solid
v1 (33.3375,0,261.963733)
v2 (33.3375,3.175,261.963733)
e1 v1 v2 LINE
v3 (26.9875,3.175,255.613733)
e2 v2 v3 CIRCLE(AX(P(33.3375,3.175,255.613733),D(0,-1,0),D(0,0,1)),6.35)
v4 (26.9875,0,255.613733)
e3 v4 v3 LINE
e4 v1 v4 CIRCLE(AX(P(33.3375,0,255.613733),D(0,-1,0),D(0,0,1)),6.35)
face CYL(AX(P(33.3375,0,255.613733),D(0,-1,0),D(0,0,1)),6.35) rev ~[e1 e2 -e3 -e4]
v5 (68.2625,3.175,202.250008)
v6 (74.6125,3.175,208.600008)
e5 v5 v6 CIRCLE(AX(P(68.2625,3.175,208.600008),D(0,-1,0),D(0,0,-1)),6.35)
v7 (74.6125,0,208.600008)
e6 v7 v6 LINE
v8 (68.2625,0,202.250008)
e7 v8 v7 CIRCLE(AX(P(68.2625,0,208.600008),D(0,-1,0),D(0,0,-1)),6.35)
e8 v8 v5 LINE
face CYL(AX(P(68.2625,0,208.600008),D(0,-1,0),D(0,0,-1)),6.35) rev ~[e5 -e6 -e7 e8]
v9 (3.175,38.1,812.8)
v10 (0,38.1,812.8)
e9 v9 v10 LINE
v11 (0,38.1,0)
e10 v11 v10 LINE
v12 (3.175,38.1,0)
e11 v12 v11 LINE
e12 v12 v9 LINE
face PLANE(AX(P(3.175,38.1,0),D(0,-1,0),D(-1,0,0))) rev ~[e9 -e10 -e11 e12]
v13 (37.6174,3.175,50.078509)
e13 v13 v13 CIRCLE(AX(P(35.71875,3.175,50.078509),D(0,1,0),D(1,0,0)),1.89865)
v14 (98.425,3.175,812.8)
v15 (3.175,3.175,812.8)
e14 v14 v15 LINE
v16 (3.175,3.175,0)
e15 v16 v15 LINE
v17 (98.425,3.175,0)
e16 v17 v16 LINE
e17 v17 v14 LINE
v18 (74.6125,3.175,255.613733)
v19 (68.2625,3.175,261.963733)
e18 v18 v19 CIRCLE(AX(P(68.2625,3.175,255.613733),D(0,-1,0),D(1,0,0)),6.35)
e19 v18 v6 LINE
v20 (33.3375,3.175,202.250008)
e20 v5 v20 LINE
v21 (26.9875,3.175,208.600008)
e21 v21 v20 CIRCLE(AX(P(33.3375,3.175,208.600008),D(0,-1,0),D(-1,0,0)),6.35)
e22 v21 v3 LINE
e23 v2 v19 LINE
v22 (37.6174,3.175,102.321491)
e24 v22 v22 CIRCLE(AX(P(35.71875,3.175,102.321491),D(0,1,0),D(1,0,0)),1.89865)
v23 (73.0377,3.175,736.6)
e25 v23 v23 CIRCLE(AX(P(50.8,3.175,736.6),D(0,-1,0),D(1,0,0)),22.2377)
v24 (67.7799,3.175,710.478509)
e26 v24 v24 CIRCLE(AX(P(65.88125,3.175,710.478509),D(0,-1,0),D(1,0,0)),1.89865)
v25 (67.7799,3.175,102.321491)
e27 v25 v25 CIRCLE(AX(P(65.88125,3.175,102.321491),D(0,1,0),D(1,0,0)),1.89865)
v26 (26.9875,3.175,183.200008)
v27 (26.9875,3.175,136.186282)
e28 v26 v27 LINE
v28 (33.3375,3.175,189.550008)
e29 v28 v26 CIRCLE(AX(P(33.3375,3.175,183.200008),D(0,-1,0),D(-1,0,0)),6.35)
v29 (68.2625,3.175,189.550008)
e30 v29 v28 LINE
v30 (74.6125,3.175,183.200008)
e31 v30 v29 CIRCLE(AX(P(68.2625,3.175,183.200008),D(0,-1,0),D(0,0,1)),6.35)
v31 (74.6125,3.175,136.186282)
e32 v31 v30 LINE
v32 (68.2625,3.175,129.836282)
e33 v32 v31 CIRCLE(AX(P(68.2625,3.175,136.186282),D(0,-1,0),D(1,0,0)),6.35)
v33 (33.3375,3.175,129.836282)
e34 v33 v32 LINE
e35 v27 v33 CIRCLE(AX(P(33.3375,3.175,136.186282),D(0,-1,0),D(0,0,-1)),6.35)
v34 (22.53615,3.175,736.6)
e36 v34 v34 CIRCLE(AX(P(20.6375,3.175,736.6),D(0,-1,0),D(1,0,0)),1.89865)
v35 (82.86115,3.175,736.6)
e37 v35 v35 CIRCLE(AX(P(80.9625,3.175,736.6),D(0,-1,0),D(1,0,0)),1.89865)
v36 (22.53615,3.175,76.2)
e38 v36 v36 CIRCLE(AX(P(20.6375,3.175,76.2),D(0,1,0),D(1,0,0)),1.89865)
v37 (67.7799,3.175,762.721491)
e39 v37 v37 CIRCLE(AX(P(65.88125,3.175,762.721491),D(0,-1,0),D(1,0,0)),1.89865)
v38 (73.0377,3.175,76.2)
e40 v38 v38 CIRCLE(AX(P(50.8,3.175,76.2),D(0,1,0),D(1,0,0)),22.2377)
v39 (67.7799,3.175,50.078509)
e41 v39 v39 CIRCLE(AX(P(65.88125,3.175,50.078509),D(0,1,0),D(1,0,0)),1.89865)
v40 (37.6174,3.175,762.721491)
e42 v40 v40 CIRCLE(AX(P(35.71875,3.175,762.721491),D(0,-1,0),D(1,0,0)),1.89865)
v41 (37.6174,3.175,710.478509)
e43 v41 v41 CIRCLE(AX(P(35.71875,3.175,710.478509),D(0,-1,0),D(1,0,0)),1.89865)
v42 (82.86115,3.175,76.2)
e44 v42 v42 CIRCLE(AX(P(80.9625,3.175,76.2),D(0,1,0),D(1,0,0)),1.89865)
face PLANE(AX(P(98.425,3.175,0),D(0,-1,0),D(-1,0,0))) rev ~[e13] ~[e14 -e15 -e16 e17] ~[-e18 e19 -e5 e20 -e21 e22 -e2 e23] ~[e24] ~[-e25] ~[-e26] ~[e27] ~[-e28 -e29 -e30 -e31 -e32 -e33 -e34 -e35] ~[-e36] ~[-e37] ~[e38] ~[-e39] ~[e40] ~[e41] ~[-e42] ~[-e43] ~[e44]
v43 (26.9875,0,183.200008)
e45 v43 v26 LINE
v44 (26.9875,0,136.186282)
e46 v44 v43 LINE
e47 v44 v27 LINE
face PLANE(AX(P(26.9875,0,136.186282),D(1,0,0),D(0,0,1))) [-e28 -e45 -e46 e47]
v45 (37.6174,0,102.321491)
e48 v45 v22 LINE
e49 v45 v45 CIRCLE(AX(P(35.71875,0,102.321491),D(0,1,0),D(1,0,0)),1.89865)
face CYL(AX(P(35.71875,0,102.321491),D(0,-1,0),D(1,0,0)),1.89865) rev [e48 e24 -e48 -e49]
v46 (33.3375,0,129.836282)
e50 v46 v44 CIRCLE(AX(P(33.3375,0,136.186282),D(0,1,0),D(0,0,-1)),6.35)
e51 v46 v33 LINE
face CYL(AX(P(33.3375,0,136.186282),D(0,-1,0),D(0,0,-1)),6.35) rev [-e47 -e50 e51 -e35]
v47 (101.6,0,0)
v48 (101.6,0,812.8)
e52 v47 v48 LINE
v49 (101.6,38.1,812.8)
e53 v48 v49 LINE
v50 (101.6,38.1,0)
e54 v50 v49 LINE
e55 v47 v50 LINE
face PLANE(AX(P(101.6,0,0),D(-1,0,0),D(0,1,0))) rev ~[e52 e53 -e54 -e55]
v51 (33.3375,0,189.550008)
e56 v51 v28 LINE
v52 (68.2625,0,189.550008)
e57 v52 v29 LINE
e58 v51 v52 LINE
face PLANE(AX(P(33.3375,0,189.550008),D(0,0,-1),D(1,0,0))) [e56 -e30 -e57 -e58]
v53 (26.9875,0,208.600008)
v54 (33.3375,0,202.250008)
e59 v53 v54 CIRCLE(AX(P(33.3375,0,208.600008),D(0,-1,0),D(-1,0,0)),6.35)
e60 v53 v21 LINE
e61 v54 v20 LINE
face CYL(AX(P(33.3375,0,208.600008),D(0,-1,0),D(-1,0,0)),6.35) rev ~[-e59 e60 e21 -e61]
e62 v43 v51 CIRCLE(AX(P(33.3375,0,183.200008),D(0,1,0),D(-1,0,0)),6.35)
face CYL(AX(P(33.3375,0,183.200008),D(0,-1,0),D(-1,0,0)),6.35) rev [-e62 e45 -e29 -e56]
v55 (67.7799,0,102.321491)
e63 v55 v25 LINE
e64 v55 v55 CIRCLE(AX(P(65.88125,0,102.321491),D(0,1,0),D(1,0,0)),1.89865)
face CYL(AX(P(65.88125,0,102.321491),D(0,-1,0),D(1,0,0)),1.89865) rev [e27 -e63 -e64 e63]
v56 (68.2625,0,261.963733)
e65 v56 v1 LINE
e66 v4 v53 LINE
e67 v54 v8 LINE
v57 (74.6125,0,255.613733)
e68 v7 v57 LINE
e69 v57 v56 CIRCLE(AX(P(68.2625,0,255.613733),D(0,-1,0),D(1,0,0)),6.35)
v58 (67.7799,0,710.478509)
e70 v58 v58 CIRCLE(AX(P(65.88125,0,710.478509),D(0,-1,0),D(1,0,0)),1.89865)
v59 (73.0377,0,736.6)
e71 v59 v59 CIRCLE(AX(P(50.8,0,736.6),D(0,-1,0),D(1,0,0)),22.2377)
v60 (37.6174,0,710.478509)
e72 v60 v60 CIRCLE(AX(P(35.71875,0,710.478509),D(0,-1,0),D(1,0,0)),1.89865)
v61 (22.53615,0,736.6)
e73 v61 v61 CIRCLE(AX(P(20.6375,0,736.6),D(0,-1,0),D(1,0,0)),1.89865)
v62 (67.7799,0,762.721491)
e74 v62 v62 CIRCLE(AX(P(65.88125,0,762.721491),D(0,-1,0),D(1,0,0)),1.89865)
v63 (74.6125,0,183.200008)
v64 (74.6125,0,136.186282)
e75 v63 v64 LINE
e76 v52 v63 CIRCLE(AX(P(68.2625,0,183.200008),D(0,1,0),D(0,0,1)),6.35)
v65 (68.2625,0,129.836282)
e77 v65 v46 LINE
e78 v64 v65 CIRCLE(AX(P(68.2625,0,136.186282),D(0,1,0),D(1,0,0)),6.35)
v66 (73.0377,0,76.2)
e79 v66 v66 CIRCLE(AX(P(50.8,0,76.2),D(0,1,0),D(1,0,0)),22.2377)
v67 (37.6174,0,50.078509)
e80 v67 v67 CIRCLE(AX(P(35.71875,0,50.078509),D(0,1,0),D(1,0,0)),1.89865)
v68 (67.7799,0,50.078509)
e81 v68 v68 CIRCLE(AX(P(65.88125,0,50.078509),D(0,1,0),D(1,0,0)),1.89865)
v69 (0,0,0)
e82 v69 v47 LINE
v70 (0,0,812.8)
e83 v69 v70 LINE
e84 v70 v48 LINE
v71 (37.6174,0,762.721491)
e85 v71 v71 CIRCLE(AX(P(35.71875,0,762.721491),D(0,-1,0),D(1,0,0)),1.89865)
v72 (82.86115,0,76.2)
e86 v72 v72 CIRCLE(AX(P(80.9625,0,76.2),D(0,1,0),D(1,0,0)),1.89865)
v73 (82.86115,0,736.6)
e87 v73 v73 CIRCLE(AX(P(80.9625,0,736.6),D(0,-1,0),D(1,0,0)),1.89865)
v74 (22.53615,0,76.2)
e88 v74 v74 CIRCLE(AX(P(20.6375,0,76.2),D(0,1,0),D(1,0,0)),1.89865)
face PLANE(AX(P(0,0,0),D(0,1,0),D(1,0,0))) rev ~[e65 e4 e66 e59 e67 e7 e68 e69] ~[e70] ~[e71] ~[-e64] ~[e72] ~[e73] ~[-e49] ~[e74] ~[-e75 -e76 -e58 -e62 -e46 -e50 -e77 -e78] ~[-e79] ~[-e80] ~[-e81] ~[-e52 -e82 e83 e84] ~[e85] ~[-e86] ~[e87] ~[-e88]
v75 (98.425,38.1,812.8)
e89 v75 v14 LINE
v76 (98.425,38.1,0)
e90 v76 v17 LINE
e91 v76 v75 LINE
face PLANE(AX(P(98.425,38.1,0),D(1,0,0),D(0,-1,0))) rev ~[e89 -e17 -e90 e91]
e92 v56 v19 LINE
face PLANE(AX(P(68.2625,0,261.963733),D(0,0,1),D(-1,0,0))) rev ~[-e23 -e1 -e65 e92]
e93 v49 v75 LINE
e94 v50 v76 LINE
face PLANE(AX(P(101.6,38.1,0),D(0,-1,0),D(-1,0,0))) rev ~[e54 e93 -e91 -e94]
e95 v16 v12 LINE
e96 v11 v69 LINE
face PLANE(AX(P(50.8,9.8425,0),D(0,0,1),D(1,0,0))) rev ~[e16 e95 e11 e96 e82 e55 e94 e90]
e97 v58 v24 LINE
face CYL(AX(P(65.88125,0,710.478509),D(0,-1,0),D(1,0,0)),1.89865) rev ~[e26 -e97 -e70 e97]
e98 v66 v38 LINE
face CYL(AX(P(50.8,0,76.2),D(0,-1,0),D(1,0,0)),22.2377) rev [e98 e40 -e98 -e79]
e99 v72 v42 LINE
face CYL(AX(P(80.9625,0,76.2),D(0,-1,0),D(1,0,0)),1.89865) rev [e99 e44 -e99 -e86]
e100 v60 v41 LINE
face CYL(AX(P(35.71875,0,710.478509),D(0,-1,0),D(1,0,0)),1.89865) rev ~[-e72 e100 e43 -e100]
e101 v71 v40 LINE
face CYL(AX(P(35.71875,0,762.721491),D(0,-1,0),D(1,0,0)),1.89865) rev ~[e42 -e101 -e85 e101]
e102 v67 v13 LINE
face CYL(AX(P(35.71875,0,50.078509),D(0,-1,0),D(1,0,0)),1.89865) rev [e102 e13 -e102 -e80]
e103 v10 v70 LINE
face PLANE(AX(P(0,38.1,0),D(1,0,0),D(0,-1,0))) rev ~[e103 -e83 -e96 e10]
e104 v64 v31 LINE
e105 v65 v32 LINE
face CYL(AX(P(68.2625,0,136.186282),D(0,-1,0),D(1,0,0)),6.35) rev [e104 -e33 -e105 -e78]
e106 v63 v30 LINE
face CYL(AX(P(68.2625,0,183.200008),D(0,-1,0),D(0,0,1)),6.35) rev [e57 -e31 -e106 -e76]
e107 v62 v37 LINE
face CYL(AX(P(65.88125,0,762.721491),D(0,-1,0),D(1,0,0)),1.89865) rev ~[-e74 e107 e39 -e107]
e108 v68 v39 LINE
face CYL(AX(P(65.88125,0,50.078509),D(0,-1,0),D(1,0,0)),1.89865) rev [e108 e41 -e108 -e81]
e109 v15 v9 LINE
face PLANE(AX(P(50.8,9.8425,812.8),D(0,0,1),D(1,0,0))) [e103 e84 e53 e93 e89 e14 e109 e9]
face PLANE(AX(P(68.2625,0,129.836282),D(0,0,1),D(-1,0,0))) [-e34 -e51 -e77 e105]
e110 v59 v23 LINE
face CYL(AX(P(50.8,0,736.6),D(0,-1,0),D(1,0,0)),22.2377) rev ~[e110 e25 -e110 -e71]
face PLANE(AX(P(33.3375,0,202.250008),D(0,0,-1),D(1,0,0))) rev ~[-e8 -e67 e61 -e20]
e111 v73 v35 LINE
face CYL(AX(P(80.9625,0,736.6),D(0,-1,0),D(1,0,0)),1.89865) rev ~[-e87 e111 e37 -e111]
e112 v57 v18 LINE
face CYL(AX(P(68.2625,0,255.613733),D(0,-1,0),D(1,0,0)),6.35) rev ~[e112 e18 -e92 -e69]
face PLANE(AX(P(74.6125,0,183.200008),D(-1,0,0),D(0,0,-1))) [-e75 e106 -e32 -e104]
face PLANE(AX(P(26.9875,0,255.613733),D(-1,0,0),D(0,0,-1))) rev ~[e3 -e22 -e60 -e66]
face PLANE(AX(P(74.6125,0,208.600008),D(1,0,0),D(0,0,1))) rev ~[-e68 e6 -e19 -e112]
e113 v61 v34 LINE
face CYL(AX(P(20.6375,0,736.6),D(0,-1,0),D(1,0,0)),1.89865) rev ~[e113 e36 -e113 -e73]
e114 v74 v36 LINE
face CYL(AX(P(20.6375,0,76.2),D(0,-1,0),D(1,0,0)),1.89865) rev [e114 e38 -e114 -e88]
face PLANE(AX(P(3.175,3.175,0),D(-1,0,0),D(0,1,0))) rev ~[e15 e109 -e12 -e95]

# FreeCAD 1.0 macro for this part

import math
import FreeCAD as App
import Part
import Sketcher

V = App.Vector
Q = App.Units.Quantity


def add_polygon(sketch, points):
    """Adds a closed chain of lines whose ends are joined by coincident constraints."""
    first, n = sketch.GeometryCount, len(points)
    for a, b in zip(points, points[1:] + points[:1]):
        sketch.addGeometry(Part.LineSegment(App.Vector(*a, 0), App.Vector(*b, 0)), False)
    for i in range(n):
        sketch.addConstraint(Sketcher.Constraint("Coincident", first + i, 2, first + (i + 1) % n, 1))

doc = App.newDocument("Part")
body = doc.addObject("PartDesign::Body", "Body")

sketch1 = doc.addObject("Sketcher::SketchObject", "Sketch")
body.addObject(sketch1)
sketch1.AttachmentSupport = (doc.XY_Plane, [""])
sketch1.MapMode = "FlatFace"
add_polygon(sketch1, [(3.2, 3.2), (3.2, 38.1), (0, 38.1), (0, 0), (101.6, 0), (101.6, 38.1), (98.4, 38.1), (98.4, 3.2)])
sketch1.addConstraint([
    Sketcher.Constraint("Vertical", 0),
    Sketcher.Constraint("Horizontal", 1),
    Sketcher.Constraint("Vertical", 2),
    Sketcher.Constraint("Horizontal", 3),
    Sketcher.Constraint("Vertical", 4),
    Sketcher.Constraint("Horizontal", 5),
    Sketcher.Constraint("Vertical", 6),
    Sketcher.Constraint("Horizontal", 7),
    Sketcher.Constraint("Coincident", 2, 2, -1, 1),
    Sketcher.Constraint("Horizontal", 1, 2, 4, 2),
    Sketcher.Constraint("Equal", 1, 5),
    Sketcher.Constraint("DistanceX", 3, 1, 3, 2, Q("4 in")),
    Sketcher.Constraint("DistanceY", 2, 2, 2, 1, Q("1.5 in")),
    Sketcher.Constraint("DistanceX", 7, 2, 7, 1, Q("3.75 in")),
    Sketcher.Constraint("DistanceY", 0, 1, 0, 2, Q("1.375 in")),
])
pad1 = doc.addObject("PartDesign::Pad", "Pad")
body.addObject(pad1)
pad1.Profile = sketch1
pad1.Length = Q("32 in")

sketch2 = doc.addObject("Sketcher::SketchObject", "Sketch001")
body.addObject(sketch2)
sketch2.AttachmentSupport = (doc.XZ_Plane, [""])
sketch2.MapMode = "FlatFace"
sketch2.addGeometry(Part.Circle(V(51, 737, 0), V(0, 0, 1), 22), False)
sketch2.addConstraint([
    Sketcher.Constraint("Diameter", 0, Q("1.751 in")),
    Sketcher.Constraint("DistanceX", -1, 1, 0, 3, Q("2 in")),
    Sketcher.Constraint("DistanceY", -1, 1, 0, 3, Q("29 in")),
])
pocket1 = doc.addObject("PartDesign::Pocket", "Pocket")
body.addObject(pocket1)
pocket1.Profile = sketch2
pocket1.Length = Q("0.125 in")

sketch3 = doc.addObject("Sketcher::SketchObject", "Sketch002")
body.addObject(sketch3)
sketch3.AttachmentSupport = (doc.XZ_Plane, [""])
sketch3.MapMode = "FlatFace"
sketch3.addGeometry([
    Part.Circle(V(65.9, 762.7, 0), V(0, 0, 1), 1.9),
    Part.Circle(V(81, 736.6, 0), V(0, 0, 1), 1.9),
    Part.Circle(V(65.9, 710.5, 0), V(0, 0, 1), 1.9),
    Part.Circle(V(35.7, 710.5, 0), V(0, 0, 1), 1.9),
    Part.Circle(V(20.6, 736.6, 0), V(0, 0, 1), 1.9),
    Part.Circle(V(35.7, 762.7, 0), V(0, 0, 1), 1.9),
], False)
sketch3.addConstraint([
    Sketcher.Constraint("Equal", 0, 1),
    Sketcher.Constraint("Equal", 1, 2),
    Sketcher.Constraint("Equal", 2, 3),
    Sketcher.Constraint("Equal", 3, 4),
    Sketcher.Constraint("Equal", 4, 5),
    Sketcher.Constraint("Horizontal", 2, 3, 3, 3),
    Sketcher.Constraint("Horizontal", 1, 3, 4, 3),
    Sketcher.Constraint("Horizontal", 0, 3, 5, 3),
    Sketcher.Constraint("Vertical", 0, 3, 2, 3),
    Sketcher.Constraint("Vertical", 3, 3, 5, 3),
    Sketcher.Constraint("DistanceY", -1, 1, 1, 3, Q("29 in")),
    Sketcher.Constraint("Diameter", 0, Q("0.1495 in")),
    Sketcher.Constraint("DistanceX", -1, 1, 0, 3, Q("2.59375 in")),
    Sketcher.Constraint("DistanceX", -1, 1, 1, 3, Q("3.1875 in")),
    Sketcher.Constraint("DistanceX", -1, 1, 3, 3, Q("1.40625 in")),
    Sketcher.Constraint("DistanceX", -1, 1, 4, 3, Q("0.8125 in")),
    Sketcher.Constraint("DistanceY", -1, 1, 0, 3, 762.721491),
    Sketcher.Constraint("DistanceY", -1, 1, 2, 3, 710.478509),
])
pocket2 = doc.addObject("PartDesign::Pocket", "Pocket001")
body.addObject(pocket2)
pocket2.Profile = sketch3
pocket2.Length = Q("0.125 in")
doc.recompute()

datumplane = doc.addObject("PartDesign::Plane", "DatumPlane")
body.addObject(datumplane)
datumplane.AttachmentSupport = (doc.XY_Plane, [""])
datumplane.MapMode = "FlatFace"
datumplane.AttachmentOffset = App.Placement(V(0, 0, 16 * 25.4), App.Rotation())
mirrored = doc.addObject("PartDesign::Mirrored", "Mirrored")
body.addObject(mirrored)
mirrored.Originals = [pocket1, pocket2]
mirrored.MirrorPlane = (datumplane, [""])
body.Tip = mirrored

sketch4 = doc.addObject("Sketcher::SketchObject", "Sketch003")
body.addObject(sketch4)
sketch4.AttachmentSupport = (doc.XZ_Plane, [""])
sketch4.MapMode = "FlatFace"
sketch4.addGeometry([
    Part.LineSegment(V(33, 130, 0), V(68, 130, 0)),
    Part.ArcOfCircle(Part.Circle(V(68, 136, 0), V(0, 0, 1), 6), math.radians(-90), math.radians(0)),
    Part.LineSegment(V(75, 136, 0), V(75, 183, 0)),
    Part.ArcOfCircle(Part.Circle(V(68, 183, 0), V(0, 0, 1), 6), math.radians(0), math.radians(90)),
    Part.LineSegment(V(68, 190, 0), V(33, 190, 0)),
    Part.ArcOfCircle(Part.Circle(V(33, 183, 0), V(0, 0, 1), 6), math.radians(90), math.radians(180)),
    Part.LineSegment(V(27, 183, 0), V(27, 136, 0)),
    Part.ArcOfCircle(Part.Circle(V(33, 136, 0), V(0, 0, 1), 6), math.radians(180), math.radians(270)),
], False)
sketch4.addConstraint([
    Sketcher.Constraint("Tangent", 0, 2, 1, 1),
    Sketcher.Constraint("Tangent", 1, 2, 2, 1),
    Sketcher.Constraint("Tangent", 2, 2, 3, 1),
    Sketcher.Constraint("Tangent", 3, 2, 4, 1),
    Sketcher.Constraint("Tangent", 4, 2, 5, 1),
    Sketcher.Constraint("Tangent", 5, 2, 6, 1),
    Sketcher.Constraint("Tangent", 6, 2, 7, 1),
    Sketcher.Constraint("Tangent", 7, 2, 0, 1),
    Sketcher.Constraint("Horizontal", 0),
    Sketcher.Constraint("Vertical", 2),
    Sketcher.Constraint("Horizontal", 4),
    Sketcher.Constraint("Vertical", 6),
    Sketcher.Constraint("Equal", 1, 3),
    Sketcher.Constraint("Equal", 3, 5),
    Sketcher.Constraint("Equal", 5, 7),
    Sketcher.Constraint("Radius", 1, Q("0.25 in")),
    Sketcher.Constraint("DistanceX", 0, 1, 0, 2, Q("1.375 in")),
    Sketcher.Constraint("DistanceX", -1, 1, 1, 3, Q("2.6875 in")),
    Sketcher.Constraint("DistanceY", 2, 1, 2, 2, 47.013726),
    Sketcher.Constraint("DistanceY", -1, 1, 1, 3, 136.186282),
])
pocket3 = doc.addObject("PartDesign::Pocket", "Pocket002")
body.addObject(pocket3)
pocket3.Profile = sketch4
pocket3.Type = "UpToFirst"

sketch5 = doc.addObject("Sketcher::SketchObject", "Sketch004")
body.addObject(sketch5)
sketch5.AttachmentSupport = (doc.XZ_Plane, [""])
sketch5.MapMode = "FlatFace"
sketch5.addGeometry([
    Part.LineSegment(V(68, 262, 0), V(33, 262, 0)),
    Part.ArcOfCircle(Part.Circle(V(33, 256, 0), V(0, 0, 1), 6), math.radians(90), math.radians(180)),
    Part.LineSegment(V(27, 256, 0), V(27, 209, 0)),
    Part.ArcOfCircle(Part.Circle(V(33, 209, 0), V(0, 0, 1), 6), math.radians(180), math.radians(270)),
    Part.LineSegment(V(33, 202, 0), V(68, 202, 0)),
    Part.ArcOfCircle(Part.Circle(V(68, 209, 0), V(0, 0, 1), 6), math.radians(-90), math.radians(0)),
    Part.LineSegment(V(75, 209, 0), V(75, 256, 0)),
    Part.ArcOfCircle(Part.Circle(V(68, 256, 0), V(0, 0, 1), 6), math.radians(0), math.radians(90)),
], False)
sketch5.addConstraint([
    Sketcher.Constraint("Tangent", 0, 2, 1, 1),
    Sketcher.Constraint("Tangent", 1, 2, 2, 1),
    Sketcher.Constraint("Tangent", 2, 2, 3, 1),
    Sketcher.Constraint("Tangent", 3, 2, 4, 1),
    Sketcher.Constraint("Tangent", 4, 2, 5, 1),
    Sketcher.Constraint("Tangent", 5, 2, 6, 1),
    Sketcher.Constraint("Tangent", 6, 2, 7, 1),
    Sketcher.Constraint("Tangent", 7, 2, 0, 1),
    Sketcher.Constraint("Horizontal", 0),
    Sketcher.Constraint("Vertical", 2),
    Sketcher.Constraint("Horizontal", 4),
    Sketcher.Constraint("Vertical", 6),
    Sketcher.Constraint("Equal", 1, 3),
    Sketcher.Constraint("Equal", 3, 5),
    Sketcher.Constraint("Equal", 5, 7),
    Sketcher.Constraint("Radius", 1, Q("0.25 in")),
    Sketcher.Constraint("DistanceX", 0, 2, 0, 1, Q("1.375 in")),
    Sketcher.Constraint("DistanceX", -1, 1, 1, 3, Q("1.3125 in")),
    Sketcher.Constraint("DistanceY", 2, 2, 2, 1, 47.013726),
    Sketcher.Constraint("DistanceY", -1, 1, 1, 3, 255.613733),
])
pocket4 = doc.addObject("PartDesign::Pocket", "Pocket003")
body.addObject(pocket4)
pocket4.Profile = sketch5
pocket4.Type = "UpToFirst"

doc.recompute()
